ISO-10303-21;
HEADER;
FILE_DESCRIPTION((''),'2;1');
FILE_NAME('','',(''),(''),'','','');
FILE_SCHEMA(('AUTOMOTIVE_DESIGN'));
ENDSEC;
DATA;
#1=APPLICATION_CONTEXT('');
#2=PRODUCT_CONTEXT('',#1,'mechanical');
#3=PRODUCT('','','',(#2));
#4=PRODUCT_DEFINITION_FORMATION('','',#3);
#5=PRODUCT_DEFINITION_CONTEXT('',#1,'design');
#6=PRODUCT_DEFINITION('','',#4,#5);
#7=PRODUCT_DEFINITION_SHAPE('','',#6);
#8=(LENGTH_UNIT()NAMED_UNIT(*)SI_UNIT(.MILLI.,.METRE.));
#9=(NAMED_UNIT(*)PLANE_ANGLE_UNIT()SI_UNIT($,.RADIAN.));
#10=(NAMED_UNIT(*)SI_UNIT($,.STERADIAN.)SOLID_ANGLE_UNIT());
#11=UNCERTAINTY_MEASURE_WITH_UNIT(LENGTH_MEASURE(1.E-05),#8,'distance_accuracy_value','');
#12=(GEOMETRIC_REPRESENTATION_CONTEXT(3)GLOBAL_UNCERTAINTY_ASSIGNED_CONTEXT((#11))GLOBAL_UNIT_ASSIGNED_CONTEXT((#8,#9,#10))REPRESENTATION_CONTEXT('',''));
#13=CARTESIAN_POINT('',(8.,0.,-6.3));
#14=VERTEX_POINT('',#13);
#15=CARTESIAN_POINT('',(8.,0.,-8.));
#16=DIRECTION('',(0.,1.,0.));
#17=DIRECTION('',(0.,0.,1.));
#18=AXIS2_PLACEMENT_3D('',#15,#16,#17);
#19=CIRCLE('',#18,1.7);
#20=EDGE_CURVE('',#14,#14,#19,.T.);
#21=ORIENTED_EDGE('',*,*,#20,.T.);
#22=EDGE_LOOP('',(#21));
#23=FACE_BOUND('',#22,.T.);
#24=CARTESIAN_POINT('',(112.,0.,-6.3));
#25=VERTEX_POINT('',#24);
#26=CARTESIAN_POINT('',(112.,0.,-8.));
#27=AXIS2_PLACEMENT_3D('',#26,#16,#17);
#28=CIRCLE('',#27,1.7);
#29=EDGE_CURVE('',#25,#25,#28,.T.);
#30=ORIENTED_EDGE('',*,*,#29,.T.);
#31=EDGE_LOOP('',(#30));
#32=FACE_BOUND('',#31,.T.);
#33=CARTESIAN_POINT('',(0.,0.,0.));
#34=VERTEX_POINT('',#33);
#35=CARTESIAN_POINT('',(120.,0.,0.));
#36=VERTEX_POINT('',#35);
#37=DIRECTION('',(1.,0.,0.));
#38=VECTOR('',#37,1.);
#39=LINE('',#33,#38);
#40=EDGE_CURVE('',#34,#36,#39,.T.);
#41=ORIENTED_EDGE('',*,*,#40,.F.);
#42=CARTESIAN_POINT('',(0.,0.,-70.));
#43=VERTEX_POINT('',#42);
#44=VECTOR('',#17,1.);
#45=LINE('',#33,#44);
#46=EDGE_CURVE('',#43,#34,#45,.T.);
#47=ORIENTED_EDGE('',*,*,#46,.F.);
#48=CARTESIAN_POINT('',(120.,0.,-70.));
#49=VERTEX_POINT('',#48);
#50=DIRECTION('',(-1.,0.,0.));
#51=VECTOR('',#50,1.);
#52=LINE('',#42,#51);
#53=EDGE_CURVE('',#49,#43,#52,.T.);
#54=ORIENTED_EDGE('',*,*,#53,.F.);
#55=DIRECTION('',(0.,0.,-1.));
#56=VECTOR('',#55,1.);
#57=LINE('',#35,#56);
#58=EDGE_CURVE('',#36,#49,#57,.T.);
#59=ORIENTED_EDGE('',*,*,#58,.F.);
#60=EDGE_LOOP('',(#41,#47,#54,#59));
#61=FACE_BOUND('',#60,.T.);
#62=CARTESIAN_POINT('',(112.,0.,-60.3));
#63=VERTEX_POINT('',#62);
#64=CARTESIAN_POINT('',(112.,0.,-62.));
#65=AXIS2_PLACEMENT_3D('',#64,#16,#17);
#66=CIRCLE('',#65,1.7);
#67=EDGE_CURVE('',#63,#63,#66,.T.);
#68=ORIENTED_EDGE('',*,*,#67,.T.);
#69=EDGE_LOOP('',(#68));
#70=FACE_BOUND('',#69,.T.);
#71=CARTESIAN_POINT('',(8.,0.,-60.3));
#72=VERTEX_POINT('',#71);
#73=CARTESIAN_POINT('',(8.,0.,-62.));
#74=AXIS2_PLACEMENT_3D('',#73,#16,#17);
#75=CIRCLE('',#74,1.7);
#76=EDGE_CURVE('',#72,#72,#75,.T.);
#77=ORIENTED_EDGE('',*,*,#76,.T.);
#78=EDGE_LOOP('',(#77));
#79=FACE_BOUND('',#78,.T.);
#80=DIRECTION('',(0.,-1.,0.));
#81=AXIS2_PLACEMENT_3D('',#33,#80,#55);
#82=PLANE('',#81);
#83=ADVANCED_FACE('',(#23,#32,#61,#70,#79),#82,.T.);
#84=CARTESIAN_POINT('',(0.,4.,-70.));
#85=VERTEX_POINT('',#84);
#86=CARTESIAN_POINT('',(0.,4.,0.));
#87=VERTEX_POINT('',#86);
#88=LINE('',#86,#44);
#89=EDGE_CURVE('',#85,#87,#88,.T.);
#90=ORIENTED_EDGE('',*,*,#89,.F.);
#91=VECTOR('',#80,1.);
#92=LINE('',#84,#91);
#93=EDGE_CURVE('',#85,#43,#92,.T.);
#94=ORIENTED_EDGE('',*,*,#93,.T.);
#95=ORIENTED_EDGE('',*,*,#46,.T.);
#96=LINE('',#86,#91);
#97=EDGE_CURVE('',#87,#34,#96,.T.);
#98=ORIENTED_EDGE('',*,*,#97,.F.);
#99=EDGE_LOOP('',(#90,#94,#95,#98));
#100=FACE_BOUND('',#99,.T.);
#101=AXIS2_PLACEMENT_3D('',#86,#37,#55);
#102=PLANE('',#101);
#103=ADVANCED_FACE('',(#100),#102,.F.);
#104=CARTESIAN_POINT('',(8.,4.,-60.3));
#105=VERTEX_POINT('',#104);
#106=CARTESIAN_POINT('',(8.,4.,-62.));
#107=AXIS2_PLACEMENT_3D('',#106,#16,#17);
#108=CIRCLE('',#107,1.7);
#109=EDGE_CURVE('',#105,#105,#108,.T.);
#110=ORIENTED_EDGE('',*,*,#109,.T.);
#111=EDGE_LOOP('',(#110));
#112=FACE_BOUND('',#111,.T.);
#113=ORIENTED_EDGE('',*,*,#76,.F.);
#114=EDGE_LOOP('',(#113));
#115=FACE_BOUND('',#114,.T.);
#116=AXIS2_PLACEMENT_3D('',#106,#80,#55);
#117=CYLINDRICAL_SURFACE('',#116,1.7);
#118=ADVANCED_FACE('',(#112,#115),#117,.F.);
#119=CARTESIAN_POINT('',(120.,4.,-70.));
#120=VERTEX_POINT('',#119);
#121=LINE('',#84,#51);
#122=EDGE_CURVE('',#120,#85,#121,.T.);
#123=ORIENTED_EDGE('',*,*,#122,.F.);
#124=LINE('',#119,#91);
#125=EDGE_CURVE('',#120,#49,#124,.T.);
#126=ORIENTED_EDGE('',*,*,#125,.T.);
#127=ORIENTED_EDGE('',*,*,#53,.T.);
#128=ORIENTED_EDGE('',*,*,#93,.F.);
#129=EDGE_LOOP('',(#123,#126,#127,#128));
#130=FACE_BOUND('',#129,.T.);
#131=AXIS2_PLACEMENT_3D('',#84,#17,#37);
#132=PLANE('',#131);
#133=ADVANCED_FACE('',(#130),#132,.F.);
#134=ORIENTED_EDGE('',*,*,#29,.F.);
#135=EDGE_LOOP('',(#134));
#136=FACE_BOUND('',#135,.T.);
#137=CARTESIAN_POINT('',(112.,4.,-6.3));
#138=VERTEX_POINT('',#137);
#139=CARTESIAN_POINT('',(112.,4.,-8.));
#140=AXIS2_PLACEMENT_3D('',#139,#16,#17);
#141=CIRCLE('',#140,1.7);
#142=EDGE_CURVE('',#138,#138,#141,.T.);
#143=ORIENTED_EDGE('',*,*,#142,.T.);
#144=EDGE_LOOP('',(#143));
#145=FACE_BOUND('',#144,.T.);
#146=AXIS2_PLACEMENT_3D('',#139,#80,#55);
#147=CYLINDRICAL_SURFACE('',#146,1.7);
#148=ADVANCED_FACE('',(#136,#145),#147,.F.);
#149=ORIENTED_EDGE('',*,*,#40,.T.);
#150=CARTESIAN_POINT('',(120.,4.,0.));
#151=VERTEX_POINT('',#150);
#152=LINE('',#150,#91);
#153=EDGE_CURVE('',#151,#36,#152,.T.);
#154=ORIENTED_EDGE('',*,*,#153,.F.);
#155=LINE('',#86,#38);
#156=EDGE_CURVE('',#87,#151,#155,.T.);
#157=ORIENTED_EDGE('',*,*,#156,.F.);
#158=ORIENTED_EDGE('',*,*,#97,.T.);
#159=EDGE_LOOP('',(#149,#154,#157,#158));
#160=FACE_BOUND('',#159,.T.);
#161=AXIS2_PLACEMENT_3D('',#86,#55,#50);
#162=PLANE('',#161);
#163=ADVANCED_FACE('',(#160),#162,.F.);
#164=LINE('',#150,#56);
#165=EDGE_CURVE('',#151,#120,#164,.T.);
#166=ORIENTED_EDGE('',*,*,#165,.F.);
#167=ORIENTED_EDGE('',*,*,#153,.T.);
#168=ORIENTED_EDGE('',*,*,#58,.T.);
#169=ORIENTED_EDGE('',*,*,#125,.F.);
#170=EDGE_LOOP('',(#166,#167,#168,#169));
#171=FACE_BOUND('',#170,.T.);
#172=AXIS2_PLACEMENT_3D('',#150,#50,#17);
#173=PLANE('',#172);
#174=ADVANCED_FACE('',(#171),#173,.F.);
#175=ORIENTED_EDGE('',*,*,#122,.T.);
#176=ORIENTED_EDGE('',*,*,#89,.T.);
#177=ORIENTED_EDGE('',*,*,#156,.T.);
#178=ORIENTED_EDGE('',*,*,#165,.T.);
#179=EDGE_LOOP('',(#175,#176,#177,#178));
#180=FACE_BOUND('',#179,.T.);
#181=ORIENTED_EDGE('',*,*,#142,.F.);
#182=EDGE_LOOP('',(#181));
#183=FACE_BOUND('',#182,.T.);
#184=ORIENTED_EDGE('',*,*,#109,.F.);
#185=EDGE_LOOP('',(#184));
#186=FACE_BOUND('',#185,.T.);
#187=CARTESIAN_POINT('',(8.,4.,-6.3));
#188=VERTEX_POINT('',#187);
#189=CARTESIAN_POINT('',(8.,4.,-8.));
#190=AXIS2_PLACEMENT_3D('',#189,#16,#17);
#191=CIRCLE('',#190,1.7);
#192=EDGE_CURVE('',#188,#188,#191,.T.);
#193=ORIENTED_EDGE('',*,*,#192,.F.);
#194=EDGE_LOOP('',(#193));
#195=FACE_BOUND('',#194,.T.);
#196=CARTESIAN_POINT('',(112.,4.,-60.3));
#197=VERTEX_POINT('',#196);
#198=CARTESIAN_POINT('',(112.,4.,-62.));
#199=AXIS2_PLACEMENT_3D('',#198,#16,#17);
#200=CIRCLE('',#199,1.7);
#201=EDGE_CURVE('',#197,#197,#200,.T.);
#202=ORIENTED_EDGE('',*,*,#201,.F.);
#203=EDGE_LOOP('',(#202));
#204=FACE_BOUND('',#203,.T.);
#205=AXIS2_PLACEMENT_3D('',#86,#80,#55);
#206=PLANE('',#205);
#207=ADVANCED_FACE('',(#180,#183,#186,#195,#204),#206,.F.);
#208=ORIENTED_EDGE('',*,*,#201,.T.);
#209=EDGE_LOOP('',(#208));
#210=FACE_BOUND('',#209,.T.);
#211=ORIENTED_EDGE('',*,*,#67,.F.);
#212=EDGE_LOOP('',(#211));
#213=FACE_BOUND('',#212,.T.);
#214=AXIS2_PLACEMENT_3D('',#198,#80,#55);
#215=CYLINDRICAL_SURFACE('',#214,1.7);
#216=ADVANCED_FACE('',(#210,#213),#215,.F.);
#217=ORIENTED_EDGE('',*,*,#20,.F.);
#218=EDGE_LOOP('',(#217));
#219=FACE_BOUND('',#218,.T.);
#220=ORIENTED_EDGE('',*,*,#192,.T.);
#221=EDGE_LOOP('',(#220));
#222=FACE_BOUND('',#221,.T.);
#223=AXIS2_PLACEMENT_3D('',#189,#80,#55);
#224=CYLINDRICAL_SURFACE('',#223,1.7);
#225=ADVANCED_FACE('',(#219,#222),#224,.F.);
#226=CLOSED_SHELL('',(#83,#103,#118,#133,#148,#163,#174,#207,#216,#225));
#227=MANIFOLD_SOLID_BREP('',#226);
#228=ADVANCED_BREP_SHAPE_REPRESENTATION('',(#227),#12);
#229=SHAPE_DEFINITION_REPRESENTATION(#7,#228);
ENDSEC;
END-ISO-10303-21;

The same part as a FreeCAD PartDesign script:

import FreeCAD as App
import Part
import Sketcher


def add_polygon(sketch, points):
    """Adds a closed chain of lines whose ends are joined by coincident constraints."""
    first, n = sketch.GeometryCount, len(points)
    for a, b in zip(points, points[1:] + points[:1]):
        sketch.addGeometry(Part.LineSegment(App.Vector(*a, 0), App.Vector(*b, 0)), False)
    for i in range(n):
        sketch.addConstraint(Sketcher.Constraint("Coincident", first + i, 2, first + (i + 1) % n, 1))

doc = App.newDocument("Part")
body = doc.addObject("PartDesign::Body", "Body")

# Sketch on XZ plane
sketch1 = body.newObject("Sketcher::SketchObject", "Sketch")
sketch1.AttachmentSupport = (doc.getObject("XZ_Plane"), [""])
sketch1.MapMode = "FlatFace"
add_polygon(sketch1, [(0, -70), (0, 0), (120, 0), (120, -70)])  # lines 0-3
sketch1.addGeometry(Part.Circle(App.Vector(8, -8, 0), App.Vector(0, 0, 1), 1.7), False)  # 4
sketch1.addGeometry(Part.Circle(App.Vector(112, -8, 0), App.Vector(0, 0, 1), 1.7), False)  # 5
sketch1.addGeometry(Part.Circle(App.Vector(8, -62, 0), App.Vector(0, 0, 1), 1.7), False)  # 6
sketch1.addGeometry(Part.Circle(App.Vector(112, -62, 0), App.Vector(0, 0, 1), 1.7), False)  # 7
sketch1.addConstraint([
    Sketcher.Constraint("Vertical", 0),
    Sketcher.Constraint("Horizontal", 1),
    Sketcher.Constraint("Vertical", 2),
    Sketcher.Constraint("Horizontal", 3),
    Sketcher.Constraint("Coincident", 0, 2, -1, 1),
    Sketcher.Constraint("Equal", 4, 5),
    Sketcher.Constraint("Equal", 5, 6),
    Sketcher.Constraint("Equal", 6, 7),
    Sketcher.Constraint("Horizontal", 4, 3, 5, 3),
    Sketcher.Constraint("Horizontal", 6, 3, 7, 3),
    Sketcher.Constraint("Vertical", 4, 3, 6, 3),
    Sketcher.Constraint("Vertical", 5, 3, 7, 3),
    Sketcher.Constraint("Diameter", 4, 3.4),
    Sketcher.Constraint("DistanceX", 1, 1, 1, 2, 120.0),
    Sketcher.Constraint("DistanceY", 0, 1, 0, 2, 70.0),
    Sketcher.Constraint("DistanceX", -1, 1, 4, 3, 8.0),
    Sketcher.Constraint("DistanceY", 4, 3, -1, 1, 8.0),
    Sketcher.Constraint("DistanceX", -1, 1, 5, 3, 112.0),
    Sketcher.Constraint("DistanceY", 6, 3, -1, 1, 62.0),
])
pad1 = body.newObject("PartDesign::Pad", "Pad")
pad1.Profile = sketch1
pad1.Length = 4
pad1.Reversed = True

doc.recompute()
